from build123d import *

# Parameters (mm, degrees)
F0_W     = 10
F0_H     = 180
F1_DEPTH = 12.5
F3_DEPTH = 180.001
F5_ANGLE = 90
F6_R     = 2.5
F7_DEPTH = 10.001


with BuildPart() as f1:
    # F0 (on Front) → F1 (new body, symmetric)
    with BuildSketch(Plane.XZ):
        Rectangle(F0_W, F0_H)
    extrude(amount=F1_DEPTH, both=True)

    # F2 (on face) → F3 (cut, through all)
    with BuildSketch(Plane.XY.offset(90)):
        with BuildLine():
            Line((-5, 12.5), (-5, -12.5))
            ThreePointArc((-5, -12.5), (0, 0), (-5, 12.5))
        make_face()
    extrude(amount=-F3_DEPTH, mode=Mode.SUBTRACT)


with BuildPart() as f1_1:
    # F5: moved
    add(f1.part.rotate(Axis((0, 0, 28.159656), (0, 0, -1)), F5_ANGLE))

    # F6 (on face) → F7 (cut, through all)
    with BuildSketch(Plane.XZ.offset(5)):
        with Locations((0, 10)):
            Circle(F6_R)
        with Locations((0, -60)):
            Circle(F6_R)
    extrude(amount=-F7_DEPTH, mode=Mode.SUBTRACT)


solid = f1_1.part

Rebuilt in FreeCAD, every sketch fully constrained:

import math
import FreeCAD as App
import Part
import Sketcher

V = App.Vector


def add_polygon(sketch, points):
    """Adds a closed chain of lines whose ends are joined by coincident constraints."""
    first, n = sketch.GeometryCount, len(points)
    for a, b in zip(points, points[1:] + points[:1]):
        sketch.addGeometry(Part.LineSegment(App.Vector(*a, 0), App.Vector(*b, 0)), False)
    for i in range(n):
        sketch.addConstraint(Sketcher.Constraint("Coincident", first + i, 2, first + (i + 1) % n, 1))

doc = App.newDocument("Part")
body = doc.addObject("PartDesign::Body", "Body")

# Sketch on XZ plane
sketch1 = doc.addObject("Sketcher::SketchObject", "Sketch")
body.addObject(sketch1)
sketch1.AttachmentSupport = (doc.XZ_Plane, [""])
sketch1.MapMode = "FlatFace"
add_polygon(sketch1, [(-5, 90), (-5, -90), (5, -90), (5, 90)])  # lines 0-3
sketch1.addConstraint(Sketcher.Constraint("Vertical", 0))
sketch1.addConstraint(Sketcher.Constraint("Horizontal", 1))
sketch1.addConstraint(Sketcher.Constraint("Vertical", 2))
sketch1.addConstraint(Sketcher.Constraint("Horizontal", 3))
sketch1.addConstraint(Sketcher.Constraint("Symmetric", 0, 2, 2, 2, -1, 1))
sketch1.addConstraint(Sketcher.Constraint("DistanceX", 1, 1, 1, 2, 10.0))
sketch1.addConstraint(Sketcher.Constraint("DistanceY", 0, 2, 0, 1, 180.0))
pad1 = doc.addObject("PartDesign::Pad", "Pad")
body.addObject(pad1)
pad1.Profile = sketch1
pad1.Length = 25
pad1.Midplane = True

# Sketch on XY plane
sketch2 = doc.addObject("Sketcher::SketchObject", "Sketch001")
body.addObject(sketch2)
sketch2.AttachmentSupport = (doc.XY_Plane, [""])
sketch2.MapMode = "FlatFace"
sketch2.AttachmentOffset = App.Placement(V(0, 0, 90), App.Rotation())
sketch2.addGeometry(Part.LineSegment(V(-5, 12, 0), V(-5, -12, 0)), False)
sketch2.addGeometry(Part.ArcOfCircle(Part.Circle(V(-18, 0, 0), V(0, 0, 1), 18), math.radians(-44), math.radians(44)), False)
sketch2.addConstraint(Sketcher.Constraint("Coincident", 0, 1, 1, 2))
sketch2.addConstraint(Sketcher.Constraint("Coincident", 1, 1, 0, 2))
sketch2.addConstraint(Sketcher.Constraint("Vertical", 0))
sketch2.addConstraint(Sketcher.Constraint("PointOnObject", 1, 3, -1))
sketch2.addConstraint(Sketcher.Constraint("DistanceY", 0, 2, 0, 1, 25.0))
sketch2.addConstraint(Sketcher.Constraint("DistanceX", 0, 1, -1, 1, 5.0))
sketch2.addConstraint(Sketcher.Constraint("Radius", 1, 18.125))
pocket1 = doc.addObject("PartDesign::Pocket", "Pocket")
body.addObject(pocket1)
pocket1.Profile = sketch2
pocket1.Type = "ThroughAll"
body2 = doc.addObject("PartDesign::Body", "Body001")
doc.recompute()

body.Placement = App.Placement(V(0, 0, 0), App.Rotation(V(0, 0, -1), 90))
boolean = doc.addObject("PartDesign::Boolean", "Boolean")
body2.addObject(boolean)
boolean.Type = "Fuse"
boolean.addObjects([body])

# Sketch on XZ plane
sketch3 = doc.addObject("Sketcher::SketchObject", "Sketch002")
body2.addObject(sketch3)
sketch3.AttachmentSupport = (doc.getObject("XZ_Plane001"), [""])
sketch3.MapMode = "FlatFace"
sketch3.AttachmentOffset = App.Placement(V(0, 0, 5), App.Rotation())
sketch3.addGeometry(Part.Circle(V(0, 10, 0), V(0, 0, 1), 2.5), False)
sketch3.addGeometry(Part.Circle(V(0, -60, 0), V(0, 0, 1), 2.5), False)
sketch3.addConstraint(Sketcher.Constraint("Equal", 0, 1))
sketch3.addConstraint(Sketcher.Constraint("PointOnObject", 0, 3, -2))
sketch3.addConstraint(Sketcher.Constraint("PointOnObject", 1, 3, -2))
sketch3.addConstraint(Sketcher.Constraint("Diameter", 0, 5.0))
sketch3.addConstraint(Sketcher.Constraint("DistanceY", -1, 1, 0, 3, 10.0))
sketch3.addConstraint(Sketcher.Constraint("DistanceY", 1, 3, -1, 1, 60.0))
pocket2 = doc.addObject("PartDesign::Pocket", "Pocket001")
body2.addObject(pocket2)
pocket2.Profile = sketch3
pocket2.Type = "ThroughAll"

doc.recompute()
